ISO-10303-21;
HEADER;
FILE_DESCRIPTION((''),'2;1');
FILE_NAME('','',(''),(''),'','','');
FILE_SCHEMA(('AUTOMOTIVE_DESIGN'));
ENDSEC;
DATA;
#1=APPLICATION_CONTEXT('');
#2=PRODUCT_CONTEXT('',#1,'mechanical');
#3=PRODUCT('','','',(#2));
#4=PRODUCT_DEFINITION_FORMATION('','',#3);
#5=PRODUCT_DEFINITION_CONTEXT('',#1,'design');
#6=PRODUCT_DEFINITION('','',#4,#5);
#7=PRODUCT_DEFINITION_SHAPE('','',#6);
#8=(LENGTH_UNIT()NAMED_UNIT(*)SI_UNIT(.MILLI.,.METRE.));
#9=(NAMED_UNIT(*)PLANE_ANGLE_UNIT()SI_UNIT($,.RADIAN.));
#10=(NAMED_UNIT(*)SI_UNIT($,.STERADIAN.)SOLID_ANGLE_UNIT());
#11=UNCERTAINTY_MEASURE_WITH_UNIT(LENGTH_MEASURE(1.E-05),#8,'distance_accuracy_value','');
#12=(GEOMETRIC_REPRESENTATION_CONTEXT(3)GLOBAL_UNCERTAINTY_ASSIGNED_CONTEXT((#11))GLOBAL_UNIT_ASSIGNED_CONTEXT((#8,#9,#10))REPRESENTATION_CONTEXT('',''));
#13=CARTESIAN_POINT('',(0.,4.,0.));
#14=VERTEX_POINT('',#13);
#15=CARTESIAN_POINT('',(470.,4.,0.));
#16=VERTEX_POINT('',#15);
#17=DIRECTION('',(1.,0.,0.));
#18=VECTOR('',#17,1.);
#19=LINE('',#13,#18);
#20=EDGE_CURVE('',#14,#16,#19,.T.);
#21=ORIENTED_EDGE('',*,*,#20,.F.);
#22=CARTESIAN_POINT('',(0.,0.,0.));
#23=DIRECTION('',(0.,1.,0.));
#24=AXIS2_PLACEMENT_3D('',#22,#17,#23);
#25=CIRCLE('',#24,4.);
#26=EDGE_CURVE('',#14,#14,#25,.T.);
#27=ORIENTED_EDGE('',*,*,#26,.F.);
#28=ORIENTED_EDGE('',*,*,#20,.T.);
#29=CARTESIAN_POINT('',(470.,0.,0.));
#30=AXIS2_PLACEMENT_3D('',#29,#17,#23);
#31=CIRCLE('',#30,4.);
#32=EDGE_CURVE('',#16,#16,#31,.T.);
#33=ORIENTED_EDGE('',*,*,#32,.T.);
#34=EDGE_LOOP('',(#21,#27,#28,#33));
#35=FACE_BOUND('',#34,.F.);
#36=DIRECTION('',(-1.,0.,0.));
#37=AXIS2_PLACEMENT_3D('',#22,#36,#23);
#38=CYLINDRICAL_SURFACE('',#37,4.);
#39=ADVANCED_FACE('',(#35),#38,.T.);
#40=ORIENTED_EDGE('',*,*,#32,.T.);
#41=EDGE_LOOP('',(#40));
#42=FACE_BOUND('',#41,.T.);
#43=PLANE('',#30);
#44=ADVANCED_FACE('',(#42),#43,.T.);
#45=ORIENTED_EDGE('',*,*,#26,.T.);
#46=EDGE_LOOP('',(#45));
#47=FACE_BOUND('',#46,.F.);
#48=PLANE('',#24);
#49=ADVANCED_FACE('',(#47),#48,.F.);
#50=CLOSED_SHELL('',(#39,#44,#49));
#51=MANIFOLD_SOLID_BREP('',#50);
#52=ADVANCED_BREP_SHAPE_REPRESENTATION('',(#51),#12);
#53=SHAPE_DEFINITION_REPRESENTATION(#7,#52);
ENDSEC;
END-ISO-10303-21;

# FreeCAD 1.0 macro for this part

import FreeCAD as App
import Part
import Sketcher

V = App.Vector
Q = App.Units.Quantity

doc = App.newDocument("Part")
params = doc.addObject("Spreadsheet::Sheet", "Params")
for row, (alias, value) in enumerate([
    ("sketch1_diameter", "8 mm"),
    ("pad1_length", "470 mm"),
], start=1):
    params.set(f"A{row}", alias)
    params.set(f"B{row}", "=" + value)
    params.setAlias(f"B{row}", alias)

body = doc.addObject("PartDesign::Body", "Body")

sketch1 = doc.addObject("Sketcher::SketchObject", "Sketch")
body.addObject(sketch1)
sketch1.AttachmentSupport = (doc.YZ_Plane, [""])
sketch1.MapMode = "FlatFace"
sketch1.addGeometry(Part.Circle(V(0, 0, 0), V(0, 0, 1), 4), False)
sketch1.addConstraint([
    Sketcher.Constraint("Coincident", 0, 3, -1, 1),
    Sketcher.Constraint("Diameter", 0, Q("8 mm")),
])
sketch1.setExpression("Constraints[1]", "Params.sketch1_diameter")
pad1 = doc.addObject("PartDesign::Pad", "Pad")
body.addObject(pad1)
pad1.Profile = sketch1
pad1.setExpression("Length", "Params.pad1_length")

doc.recompute()
